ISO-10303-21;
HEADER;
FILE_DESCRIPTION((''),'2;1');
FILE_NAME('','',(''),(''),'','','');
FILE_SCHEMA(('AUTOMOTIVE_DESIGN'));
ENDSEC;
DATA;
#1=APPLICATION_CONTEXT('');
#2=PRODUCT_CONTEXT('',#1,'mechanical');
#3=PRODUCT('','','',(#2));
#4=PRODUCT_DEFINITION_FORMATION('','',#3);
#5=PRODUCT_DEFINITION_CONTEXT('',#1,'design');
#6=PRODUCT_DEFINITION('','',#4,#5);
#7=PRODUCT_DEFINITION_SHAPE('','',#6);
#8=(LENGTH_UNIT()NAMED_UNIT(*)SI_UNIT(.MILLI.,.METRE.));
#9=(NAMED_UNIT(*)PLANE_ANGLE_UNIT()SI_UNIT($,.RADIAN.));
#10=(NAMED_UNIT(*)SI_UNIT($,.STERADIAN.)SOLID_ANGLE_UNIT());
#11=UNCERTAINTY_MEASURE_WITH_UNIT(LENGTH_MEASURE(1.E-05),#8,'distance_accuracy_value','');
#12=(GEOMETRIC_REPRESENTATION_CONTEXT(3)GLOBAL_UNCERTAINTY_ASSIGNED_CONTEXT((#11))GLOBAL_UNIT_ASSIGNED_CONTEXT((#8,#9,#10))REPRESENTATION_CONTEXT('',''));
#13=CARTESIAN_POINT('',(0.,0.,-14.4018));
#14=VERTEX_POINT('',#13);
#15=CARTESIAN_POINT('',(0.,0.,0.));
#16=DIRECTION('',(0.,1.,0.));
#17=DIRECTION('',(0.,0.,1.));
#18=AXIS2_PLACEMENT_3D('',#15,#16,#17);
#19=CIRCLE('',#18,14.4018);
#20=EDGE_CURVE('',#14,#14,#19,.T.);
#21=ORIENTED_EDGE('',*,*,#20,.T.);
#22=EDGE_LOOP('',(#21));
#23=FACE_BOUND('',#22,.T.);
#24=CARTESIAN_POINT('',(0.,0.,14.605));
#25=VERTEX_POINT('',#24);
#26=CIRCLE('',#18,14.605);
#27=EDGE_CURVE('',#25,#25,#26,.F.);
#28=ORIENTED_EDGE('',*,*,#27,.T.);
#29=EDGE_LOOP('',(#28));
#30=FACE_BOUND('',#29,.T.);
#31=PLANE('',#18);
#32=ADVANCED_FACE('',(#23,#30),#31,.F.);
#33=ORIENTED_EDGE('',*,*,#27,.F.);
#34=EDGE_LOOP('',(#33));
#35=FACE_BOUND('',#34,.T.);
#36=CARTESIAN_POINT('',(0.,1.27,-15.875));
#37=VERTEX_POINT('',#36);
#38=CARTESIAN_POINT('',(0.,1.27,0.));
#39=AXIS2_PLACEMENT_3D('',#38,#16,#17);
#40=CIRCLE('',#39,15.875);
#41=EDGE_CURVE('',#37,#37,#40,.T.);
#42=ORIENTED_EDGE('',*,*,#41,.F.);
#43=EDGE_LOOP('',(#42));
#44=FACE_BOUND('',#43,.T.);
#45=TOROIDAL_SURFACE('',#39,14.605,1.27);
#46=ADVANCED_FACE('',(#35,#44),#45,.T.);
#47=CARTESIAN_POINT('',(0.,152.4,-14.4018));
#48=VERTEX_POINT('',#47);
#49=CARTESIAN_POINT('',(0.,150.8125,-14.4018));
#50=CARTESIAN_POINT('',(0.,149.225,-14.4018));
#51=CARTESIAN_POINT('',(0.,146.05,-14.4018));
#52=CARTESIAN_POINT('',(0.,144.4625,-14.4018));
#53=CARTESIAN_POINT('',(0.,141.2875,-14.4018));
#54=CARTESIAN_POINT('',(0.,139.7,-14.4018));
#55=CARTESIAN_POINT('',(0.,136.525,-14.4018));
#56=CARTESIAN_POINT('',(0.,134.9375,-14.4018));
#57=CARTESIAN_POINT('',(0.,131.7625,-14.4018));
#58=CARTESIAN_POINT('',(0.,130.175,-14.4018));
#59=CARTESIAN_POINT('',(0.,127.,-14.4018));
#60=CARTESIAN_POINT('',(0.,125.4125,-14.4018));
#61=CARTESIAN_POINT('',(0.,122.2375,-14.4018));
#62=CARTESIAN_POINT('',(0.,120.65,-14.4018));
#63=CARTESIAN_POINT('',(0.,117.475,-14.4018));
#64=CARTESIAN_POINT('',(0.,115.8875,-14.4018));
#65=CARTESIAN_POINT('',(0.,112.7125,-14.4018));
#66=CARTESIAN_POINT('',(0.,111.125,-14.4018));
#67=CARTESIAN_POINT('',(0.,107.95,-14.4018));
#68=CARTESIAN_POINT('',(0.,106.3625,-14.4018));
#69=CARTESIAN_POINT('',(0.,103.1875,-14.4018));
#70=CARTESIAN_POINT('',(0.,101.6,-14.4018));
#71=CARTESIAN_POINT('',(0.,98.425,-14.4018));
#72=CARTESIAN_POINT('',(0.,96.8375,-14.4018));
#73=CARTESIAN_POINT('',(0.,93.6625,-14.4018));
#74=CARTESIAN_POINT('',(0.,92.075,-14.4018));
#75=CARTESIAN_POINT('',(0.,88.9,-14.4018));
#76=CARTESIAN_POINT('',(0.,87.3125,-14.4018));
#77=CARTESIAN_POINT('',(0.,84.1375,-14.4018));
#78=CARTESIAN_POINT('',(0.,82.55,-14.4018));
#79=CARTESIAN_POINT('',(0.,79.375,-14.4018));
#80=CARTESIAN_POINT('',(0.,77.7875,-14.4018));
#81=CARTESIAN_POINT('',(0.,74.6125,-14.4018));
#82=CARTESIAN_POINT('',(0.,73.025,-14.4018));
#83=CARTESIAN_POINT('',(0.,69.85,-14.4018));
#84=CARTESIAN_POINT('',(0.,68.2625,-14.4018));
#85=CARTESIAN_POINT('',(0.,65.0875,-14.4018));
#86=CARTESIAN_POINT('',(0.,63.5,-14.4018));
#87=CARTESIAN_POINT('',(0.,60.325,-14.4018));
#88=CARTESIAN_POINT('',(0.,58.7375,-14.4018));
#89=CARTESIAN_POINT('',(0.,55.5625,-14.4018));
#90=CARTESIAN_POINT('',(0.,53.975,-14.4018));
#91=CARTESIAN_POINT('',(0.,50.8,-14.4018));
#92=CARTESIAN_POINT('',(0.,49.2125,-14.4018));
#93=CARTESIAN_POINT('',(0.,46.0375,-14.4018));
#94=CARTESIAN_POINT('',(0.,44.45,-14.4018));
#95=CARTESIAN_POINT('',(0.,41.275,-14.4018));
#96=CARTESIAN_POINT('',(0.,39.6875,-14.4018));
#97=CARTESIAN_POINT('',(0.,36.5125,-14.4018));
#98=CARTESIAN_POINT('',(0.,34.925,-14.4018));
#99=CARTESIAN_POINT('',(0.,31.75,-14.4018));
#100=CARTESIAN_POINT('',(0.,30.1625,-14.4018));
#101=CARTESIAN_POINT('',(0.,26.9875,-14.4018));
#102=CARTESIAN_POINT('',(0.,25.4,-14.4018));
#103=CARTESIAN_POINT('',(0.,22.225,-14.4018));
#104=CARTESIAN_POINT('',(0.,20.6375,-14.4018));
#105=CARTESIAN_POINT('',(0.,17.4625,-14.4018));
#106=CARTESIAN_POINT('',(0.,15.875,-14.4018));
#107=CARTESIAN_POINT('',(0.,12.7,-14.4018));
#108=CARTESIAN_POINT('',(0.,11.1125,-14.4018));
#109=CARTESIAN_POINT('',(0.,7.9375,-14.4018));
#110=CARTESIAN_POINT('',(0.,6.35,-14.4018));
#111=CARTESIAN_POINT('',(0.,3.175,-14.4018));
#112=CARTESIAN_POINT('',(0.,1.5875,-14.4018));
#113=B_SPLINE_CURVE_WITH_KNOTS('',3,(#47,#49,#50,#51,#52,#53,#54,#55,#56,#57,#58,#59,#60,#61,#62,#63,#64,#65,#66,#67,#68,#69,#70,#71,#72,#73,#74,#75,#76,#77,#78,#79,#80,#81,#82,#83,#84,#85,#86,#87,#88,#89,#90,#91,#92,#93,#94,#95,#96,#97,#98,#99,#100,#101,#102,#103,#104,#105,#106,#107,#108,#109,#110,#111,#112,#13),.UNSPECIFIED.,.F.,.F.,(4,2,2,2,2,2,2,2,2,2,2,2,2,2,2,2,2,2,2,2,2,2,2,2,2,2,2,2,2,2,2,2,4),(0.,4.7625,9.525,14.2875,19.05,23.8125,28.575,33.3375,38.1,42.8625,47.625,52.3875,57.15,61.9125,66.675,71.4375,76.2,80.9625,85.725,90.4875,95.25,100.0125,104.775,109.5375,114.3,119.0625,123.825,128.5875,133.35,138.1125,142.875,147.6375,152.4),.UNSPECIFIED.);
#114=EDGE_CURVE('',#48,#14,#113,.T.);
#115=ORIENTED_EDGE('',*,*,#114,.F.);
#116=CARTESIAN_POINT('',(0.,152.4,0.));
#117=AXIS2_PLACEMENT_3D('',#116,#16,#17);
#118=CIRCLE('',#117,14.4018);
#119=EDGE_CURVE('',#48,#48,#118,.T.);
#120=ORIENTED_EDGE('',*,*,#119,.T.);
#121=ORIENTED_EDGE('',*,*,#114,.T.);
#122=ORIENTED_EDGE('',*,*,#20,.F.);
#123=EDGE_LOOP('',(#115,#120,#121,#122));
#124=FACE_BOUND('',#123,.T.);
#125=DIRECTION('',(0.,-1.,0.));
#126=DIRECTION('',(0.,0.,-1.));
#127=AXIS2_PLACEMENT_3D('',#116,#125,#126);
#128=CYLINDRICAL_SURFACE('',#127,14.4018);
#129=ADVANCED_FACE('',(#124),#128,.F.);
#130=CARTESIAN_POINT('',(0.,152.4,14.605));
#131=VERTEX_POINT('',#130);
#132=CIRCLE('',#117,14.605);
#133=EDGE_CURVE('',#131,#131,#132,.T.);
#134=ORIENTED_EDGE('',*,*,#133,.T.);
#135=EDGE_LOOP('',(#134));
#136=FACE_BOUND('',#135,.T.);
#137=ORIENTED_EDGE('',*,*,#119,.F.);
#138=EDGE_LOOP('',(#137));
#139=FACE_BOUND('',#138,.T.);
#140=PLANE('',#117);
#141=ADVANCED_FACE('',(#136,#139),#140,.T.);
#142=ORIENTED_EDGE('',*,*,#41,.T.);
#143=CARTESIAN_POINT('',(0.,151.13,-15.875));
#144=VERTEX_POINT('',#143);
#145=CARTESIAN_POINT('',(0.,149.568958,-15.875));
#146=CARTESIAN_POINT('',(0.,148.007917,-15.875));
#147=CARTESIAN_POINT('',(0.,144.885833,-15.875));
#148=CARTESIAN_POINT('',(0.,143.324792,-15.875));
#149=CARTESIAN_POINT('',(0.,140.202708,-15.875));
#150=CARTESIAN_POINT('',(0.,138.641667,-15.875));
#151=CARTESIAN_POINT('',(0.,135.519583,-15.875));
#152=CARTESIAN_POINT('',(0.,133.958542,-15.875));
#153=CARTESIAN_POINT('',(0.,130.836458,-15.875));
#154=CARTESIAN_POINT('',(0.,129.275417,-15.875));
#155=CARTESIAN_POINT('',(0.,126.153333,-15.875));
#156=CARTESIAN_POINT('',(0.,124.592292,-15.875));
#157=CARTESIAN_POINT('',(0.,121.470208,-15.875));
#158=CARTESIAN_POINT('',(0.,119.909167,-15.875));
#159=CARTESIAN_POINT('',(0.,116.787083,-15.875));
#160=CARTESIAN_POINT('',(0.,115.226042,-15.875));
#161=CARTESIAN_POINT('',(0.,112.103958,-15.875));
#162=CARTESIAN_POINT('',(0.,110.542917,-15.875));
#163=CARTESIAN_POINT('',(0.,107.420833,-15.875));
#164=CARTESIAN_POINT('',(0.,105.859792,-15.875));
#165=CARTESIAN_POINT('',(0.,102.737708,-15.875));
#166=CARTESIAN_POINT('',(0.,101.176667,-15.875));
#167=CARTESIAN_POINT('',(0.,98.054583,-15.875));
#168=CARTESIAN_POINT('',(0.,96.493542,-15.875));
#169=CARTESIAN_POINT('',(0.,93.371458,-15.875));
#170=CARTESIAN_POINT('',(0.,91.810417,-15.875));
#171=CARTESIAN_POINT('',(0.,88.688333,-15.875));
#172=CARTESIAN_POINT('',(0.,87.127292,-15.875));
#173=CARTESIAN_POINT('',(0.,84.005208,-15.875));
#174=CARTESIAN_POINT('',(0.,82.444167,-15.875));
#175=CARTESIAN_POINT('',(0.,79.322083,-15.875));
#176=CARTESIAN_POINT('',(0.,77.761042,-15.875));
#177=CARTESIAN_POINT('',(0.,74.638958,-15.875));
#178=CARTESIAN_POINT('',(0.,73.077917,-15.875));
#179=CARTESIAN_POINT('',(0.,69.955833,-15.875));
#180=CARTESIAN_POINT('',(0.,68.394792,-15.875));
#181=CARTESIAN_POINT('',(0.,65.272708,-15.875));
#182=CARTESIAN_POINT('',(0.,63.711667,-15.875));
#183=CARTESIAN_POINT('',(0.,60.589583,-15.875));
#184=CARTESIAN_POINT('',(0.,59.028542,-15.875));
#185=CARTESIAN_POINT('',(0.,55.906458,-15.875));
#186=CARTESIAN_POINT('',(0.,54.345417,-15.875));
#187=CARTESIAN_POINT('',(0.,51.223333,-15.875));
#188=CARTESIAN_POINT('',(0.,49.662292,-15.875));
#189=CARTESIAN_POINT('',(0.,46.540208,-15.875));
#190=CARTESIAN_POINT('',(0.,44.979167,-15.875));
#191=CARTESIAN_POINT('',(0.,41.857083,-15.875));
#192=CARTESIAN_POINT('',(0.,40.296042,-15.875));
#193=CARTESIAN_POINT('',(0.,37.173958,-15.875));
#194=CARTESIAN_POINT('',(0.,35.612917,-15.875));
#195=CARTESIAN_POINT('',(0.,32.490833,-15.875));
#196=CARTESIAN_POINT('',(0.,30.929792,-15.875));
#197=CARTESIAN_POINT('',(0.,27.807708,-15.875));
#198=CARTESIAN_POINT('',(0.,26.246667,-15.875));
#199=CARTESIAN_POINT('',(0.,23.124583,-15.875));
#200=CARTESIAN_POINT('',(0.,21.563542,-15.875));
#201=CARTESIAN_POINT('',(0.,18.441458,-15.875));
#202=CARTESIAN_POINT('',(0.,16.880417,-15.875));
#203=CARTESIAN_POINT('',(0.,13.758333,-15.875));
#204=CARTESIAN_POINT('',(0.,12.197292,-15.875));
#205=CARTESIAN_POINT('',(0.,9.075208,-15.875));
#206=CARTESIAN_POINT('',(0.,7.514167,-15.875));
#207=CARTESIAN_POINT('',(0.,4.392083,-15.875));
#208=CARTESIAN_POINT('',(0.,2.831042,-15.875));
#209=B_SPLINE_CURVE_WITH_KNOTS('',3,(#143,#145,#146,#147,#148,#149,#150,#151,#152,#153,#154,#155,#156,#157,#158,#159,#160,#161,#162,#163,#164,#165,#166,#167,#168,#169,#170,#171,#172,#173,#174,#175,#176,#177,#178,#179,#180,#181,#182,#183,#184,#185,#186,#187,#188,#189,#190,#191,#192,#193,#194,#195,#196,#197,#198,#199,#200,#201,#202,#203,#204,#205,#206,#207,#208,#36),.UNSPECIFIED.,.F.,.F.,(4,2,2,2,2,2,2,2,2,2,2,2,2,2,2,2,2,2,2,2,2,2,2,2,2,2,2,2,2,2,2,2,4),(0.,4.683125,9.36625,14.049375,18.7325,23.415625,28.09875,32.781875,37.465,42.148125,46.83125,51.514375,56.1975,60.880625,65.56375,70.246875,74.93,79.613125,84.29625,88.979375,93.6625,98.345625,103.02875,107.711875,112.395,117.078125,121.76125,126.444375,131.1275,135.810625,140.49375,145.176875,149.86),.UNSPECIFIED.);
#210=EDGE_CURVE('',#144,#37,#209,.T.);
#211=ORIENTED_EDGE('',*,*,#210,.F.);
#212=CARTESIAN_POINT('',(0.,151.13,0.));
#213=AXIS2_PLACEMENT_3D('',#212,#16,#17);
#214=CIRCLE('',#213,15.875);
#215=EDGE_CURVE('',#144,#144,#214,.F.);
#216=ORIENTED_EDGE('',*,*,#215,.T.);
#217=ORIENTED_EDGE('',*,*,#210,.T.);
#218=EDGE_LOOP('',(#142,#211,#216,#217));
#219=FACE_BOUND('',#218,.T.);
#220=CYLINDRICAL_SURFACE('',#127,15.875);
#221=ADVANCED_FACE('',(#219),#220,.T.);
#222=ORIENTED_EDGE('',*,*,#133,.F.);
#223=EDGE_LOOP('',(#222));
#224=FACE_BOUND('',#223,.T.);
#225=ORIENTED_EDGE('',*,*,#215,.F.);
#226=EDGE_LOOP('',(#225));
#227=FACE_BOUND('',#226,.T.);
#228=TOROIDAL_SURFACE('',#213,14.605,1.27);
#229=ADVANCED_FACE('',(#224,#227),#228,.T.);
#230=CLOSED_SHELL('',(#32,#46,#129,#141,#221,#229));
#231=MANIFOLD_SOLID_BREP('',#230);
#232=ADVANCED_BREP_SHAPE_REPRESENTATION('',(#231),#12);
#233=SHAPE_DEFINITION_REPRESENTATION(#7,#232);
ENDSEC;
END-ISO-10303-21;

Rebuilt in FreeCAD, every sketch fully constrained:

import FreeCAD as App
import Part
import Sketcher
Q = App.Units.Quantity


def edges_at(feature, points):
    """Names of the edges that pass closest to the given points."""
    edges = feature.Shape.Edges
    near = lambda p: min(range(len(edges)), key=lambda i: edges[i].distToShape(Part.Vertex(*p))[0])
    return sorted({f"Edge{near(p) + 1}" for p in points})

doc = App.newDocument("Part")
body = doc.addObject("PartDesign::Body", "Body")

sketch1 = body.newObject("Sketcher::SketchObject", "Sketch")
sketch1.AttachmentSupport = (doc.getObject("XZ_Plane"), [""])
sketch1.MapMode = "FlatFace"
sketch1.addGeometry([
    Part.Circle(App.Vector(0, 0, 0), App.Vector(0, 0, 1), 16),
    Part.Circle(App.Vector(0, 0, 0), App.Vector(0, 0, 1), 14),
], False)
sketch1.addConstraint([
    Sketcher.Constraint("Coincident", 0, 3, -1, 1),
    Sketcher.Constraint("Coincident", 1, 3, -1, 1),
    Sketcher.Constraint("Diameter", 0, Q("1.25 in")),
    Sketcher.Constraint("Diameter", 1, Q("1.134 in")),
])
pad1 = body.newObject("PartDesign::Pad", "Pad")
pad1.Profile = sketch1
pad1.Length = Q("6 in")
pad1.Reversed = True
doc.recompute()

fillet = body.newObject("PartDesign::Fillet", "Fillet")
fillet.Base = (pad1, edges_at(pad1, [(0, 0, 15.875), (0, 152.4, 15.875)]))
fillet.Radius = Q("0.05 in")

doc.recompute()
